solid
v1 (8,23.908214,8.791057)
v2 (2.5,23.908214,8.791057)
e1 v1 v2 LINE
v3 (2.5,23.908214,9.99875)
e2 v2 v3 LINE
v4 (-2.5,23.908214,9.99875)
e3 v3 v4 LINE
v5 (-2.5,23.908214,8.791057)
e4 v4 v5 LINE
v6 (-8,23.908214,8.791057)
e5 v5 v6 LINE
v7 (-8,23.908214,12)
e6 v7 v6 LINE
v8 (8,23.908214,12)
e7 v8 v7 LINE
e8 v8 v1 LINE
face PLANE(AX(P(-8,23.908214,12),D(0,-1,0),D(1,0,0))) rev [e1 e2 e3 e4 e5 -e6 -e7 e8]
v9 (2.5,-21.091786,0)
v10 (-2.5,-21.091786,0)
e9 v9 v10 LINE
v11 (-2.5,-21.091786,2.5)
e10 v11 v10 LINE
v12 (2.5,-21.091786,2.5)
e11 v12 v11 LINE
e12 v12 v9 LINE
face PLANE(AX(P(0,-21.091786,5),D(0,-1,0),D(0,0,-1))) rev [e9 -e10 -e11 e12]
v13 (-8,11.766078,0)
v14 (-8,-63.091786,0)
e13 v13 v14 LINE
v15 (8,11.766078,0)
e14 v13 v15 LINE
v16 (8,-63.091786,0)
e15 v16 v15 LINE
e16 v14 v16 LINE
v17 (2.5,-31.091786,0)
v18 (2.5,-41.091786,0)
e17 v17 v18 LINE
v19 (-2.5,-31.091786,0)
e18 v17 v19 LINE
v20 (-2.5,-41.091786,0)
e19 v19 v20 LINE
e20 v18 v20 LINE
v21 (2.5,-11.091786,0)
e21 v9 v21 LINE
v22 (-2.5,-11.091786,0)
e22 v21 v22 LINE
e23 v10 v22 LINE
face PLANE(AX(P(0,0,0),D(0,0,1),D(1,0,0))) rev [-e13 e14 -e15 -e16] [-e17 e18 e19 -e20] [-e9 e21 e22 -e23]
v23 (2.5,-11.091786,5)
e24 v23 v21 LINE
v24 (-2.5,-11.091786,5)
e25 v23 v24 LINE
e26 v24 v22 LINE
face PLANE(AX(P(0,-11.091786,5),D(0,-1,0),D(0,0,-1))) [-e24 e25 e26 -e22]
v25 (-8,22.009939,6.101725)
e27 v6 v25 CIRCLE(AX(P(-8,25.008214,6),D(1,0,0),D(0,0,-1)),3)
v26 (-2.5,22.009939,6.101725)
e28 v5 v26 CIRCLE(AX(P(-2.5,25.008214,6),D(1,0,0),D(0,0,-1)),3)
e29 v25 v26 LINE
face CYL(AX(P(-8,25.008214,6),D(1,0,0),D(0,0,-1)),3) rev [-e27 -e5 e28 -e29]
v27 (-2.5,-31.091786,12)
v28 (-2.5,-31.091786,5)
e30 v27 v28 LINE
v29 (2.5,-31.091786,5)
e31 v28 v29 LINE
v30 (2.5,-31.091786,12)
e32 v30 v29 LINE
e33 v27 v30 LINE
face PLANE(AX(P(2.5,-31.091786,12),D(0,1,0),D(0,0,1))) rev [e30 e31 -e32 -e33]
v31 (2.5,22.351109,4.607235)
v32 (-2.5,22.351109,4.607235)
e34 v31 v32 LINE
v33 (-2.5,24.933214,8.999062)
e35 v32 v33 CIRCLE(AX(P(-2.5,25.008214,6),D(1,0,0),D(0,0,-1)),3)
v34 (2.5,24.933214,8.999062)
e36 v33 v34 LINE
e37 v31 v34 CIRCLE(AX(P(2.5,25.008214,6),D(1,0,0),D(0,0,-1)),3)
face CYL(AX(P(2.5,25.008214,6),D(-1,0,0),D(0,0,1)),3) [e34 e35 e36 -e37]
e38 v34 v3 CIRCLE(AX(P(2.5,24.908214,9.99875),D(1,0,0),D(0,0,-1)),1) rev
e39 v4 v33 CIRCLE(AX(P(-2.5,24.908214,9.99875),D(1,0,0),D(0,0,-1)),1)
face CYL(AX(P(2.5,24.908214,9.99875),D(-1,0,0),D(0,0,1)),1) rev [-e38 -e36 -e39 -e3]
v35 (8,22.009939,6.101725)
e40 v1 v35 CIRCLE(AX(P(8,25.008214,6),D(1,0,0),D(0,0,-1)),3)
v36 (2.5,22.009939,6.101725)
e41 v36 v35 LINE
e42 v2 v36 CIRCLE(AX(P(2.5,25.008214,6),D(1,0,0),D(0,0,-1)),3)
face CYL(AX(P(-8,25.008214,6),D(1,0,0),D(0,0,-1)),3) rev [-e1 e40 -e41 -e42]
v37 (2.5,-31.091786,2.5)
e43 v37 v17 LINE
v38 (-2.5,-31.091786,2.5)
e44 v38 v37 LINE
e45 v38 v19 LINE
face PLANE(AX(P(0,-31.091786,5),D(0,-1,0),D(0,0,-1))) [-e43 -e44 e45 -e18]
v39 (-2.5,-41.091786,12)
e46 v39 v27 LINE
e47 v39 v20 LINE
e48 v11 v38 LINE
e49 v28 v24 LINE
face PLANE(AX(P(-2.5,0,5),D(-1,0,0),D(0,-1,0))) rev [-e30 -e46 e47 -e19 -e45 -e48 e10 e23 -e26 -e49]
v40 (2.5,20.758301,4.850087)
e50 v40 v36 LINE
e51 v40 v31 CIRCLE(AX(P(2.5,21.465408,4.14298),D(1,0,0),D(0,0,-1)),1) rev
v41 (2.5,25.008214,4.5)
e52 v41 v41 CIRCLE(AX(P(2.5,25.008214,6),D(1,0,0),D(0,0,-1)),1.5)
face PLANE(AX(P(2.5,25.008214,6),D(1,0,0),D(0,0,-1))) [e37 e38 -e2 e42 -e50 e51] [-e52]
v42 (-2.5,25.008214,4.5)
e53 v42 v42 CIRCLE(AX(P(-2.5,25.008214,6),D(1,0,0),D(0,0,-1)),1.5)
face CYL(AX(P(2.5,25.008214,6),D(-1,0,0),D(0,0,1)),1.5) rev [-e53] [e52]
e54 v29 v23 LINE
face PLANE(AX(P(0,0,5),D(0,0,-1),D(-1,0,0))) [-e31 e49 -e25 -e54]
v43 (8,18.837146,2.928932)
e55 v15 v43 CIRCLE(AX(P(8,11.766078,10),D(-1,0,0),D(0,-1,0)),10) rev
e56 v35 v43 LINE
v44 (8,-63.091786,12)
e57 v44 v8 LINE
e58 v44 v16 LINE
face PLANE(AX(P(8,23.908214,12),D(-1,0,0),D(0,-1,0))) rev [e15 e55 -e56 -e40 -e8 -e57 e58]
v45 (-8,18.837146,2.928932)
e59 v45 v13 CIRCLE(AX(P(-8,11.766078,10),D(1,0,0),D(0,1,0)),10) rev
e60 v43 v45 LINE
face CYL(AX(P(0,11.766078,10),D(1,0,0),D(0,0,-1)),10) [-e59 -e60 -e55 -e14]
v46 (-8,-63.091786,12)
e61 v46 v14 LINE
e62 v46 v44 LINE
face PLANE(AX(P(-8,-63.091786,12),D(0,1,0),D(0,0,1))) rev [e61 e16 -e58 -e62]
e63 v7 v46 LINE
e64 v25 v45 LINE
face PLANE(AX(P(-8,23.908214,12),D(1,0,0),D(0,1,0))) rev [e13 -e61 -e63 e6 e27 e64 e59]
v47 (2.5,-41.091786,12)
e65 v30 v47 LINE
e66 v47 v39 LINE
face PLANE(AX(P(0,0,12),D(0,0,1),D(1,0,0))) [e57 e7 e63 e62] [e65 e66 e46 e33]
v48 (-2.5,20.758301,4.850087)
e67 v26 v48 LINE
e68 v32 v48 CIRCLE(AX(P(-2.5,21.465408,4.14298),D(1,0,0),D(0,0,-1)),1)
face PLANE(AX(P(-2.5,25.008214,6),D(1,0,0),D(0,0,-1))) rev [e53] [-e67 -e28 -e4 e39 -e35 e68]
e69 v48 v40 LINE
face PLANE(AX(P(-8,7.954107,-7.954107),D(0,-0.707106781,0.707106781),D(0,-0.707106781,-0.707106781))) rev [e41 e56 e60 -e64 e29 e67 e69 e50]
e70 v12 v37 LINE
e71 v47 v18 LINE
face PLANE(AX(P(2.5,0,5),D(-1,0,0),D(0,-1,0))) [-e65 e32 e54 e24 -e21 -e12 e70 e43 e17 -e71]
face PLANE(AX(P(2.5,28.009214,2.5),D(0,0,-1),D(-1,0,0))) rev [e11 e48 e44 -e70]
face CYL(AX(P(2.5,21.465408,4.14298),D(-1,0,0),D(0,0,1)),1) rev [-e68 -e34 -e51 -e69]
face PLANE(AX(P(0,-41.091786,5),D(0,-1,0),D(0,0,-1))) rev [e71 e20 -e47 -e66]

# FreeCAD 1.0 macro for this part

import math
import FreeCAD as App
import Part
import Sketcher
Q = App.Units.Quantity


def edges_at(feature, points):
    """Names of the edges that pass closest to the given points."""
    edges = feature.Shape.Edges
    near = lambda p: min(range(len(edges)), key=lambda i: edges[i].distToShape(Part.Vertex(*p))[0])
    return sorted({f"Edge{near(p) + 1}" for p in points})

doc = App.newDocument("Part")
body = doc.addObject("PartDesign::Body", "Body")

# Sketch on XY plane
sketch1 = doc.addObject("Sketcher::SketchObject", "Sketch")
body.addObject(sketch1)
sketch1.AttachmentSupport = (doc.XY_Plane, [""])
sketch1.MapMode = "FlatFace"
sketch1.addGeometry(Part.LineSegment(App.Vector(-8, 23.908214, 0), App.Vector(-8, -63.091786, 0)), False)
sketch1.addGeometry(Part.LineSegment(App.Vector(-8, -63.091786, 0), App.Vector(8, -63.091786, 0)), False)
sketch1.addGeometry(Part.LineSegment(App.Vector(8, -63.091786, 0), App.Vector(8, 23.908214, 0)), False)
sketch1.addGeometry(Part.LineSegment(App.Vector(8, 23.908214, 0), App.Vector(-8, 23.908214, 0)), False)
sketch1.addConstraint(Sketcher.Constraint("Coincident", 0, 2, 1, 1))
sketch1.addConstraint(Sketcher.Constraint("Coincident", 1, 2, 2, 1))
sketch1.addConstraint(Sketcher.Constraint("Coincident", 2, 2, 3, 1))
sketch1.addConstraint(Sketcher.Constraint("Coincident", 3, 2, 0, 1))
sketch1.addConstraint(Sketcher.Constraint("Vertical", 0))
sketch1.addConstraint(Sketcher.Constraint("Horizontal", 1))
sketch1.addConstraint(Sketcher.Constraint("Vertical", 2))
sketch1.addConstraint(Sketcher.Constraint("Horizontal", 3))
sketch1.addConstraint(Sketcher.Constraint("DistanceX", 1, 1, 1, 2, Q("16 mm")))
sketch1.addConstraint(Sketcher.Constraint("DistanceY", 0, 2, 0, 1, Q("87 mm")))
sketch1.addConstraint(Sketcher.Constraint("DistanceX", 0, 2, -1, 1, Q("8 mm")))
sketch1.addConstraint(Sketcher.Constraint("DistanceY", 0, 2, -1, 1, Q("63.091786 mm")))
pad1 = doc.addObject("PartDesign::Pad", "Pad")
body.addObject(pad1)
pad1.Profile = sketch1
pad1.Length = 12

# Sketch on YZ plane
sketch2 = doc.addObject("Sketcher::SketchObject", "Sketch001")
body.addObject(sketch2)
sketch2.AttachmentSupport = (doc.YZ_Plane, [""])
sketch2.MapMode = "FlatFace"
sketch2.addGeometry(Part.LineSegment(App.Vector(15.908214, 0, 0), App.Vector(23.908214, 0, 0)), False)
sketch2.addGeometry(Part.LineSegment(App.Vector(23.908214, 0, 0), App.Vector(23.908214, 8, 0)), False)
sketch2.addGeometry(Part.LineSegment(App.Vector(23.908214, 8, 0), App.Vector(15.908214, 0, 0)), False)
sketch2.addConstraint(Sketcher.Constraint("Coincident", 0, 2, 1, 1))
sketch2.addConstraint(Sketcher.Constraint("Coincident", 1, 2, 2, 1))
sketch2.addConstraint(Sketcher.Constraint("Coincident", 2, 2, 0, 1))
sketch2.addConstraint(Sketcher.Constraint("Horizontal", 0))
sketch2.addConstraint(Sketcher.Constraint("Vertical", 1))
sketch2.addConstraint(Sketcher.Constraint("PointOnObject", 0, 2, -1))
sketch2.addConstraint(Sketcher.Constraint("Equal", 0, 1))
sketch2.addConstraint(Sketcher.Constraint("DistanceX", 0, 1, 0, 2, Q("8 mm")))
sketch2.addConstraint(Sketcher.Constraint("DistanceX", -1, 1, 0, 2, Q("23.908214 mm")))
pocket1 = doc.addObject("PartDesign::Pocket", "Pocket")
body.addObject(pocket1)
pocket1.Profile = sketch2
pocket1.Type = "ThroughAll"
pocket1.Midplane = True

# Sketch on YZ plane
sketch3 = doc.addObject("Sketcher::SketchObject", "Sketch002")
body.addObject(sketch3)
sketch3.AttachmentSupport = (doc.YZ_Plane, [""])
sketch3.MapMode = "FlatFace"
sketch3.addGeometry(Part.ArcOfCircle(Part.Circle(App.Vector(25.008214, 6, 0), App.Vector(0, 0, 1), 3), math.radians(-90), math.radians(111.510188)), False)
sketch3.addGeometry(Part.ArcOfCircle(Part.Circle(App.Vector(25.008214, 6, 0), App.Vector(0, 0, 1), 3), math.radians(111.510188), math.radians(248.489812)), False)
sketch3.addGeometry(Part.ArcOfCircle(Part.Circle(App.Vector(25.008214, 6, 0), App.Vector(0, 0, 1), 3), math.radians(-111.510188), math.radians(-90)), False)
sketch3.addGeometry(Part.ArcOfCircle(Part.Circle(App.Vector(25.008214, 6, 0), App.Vector(0, 0, 1), 1.5), math.radians(-137.166572), math.radians(-90)), False)
sketch3.addGeometry(Part.ArcOfCircle(Part.Circle(App.Vector(25.008214, 6, 0), App.Vector(0, 0, 1), 1.5), math.radians(137.166572), math.radians(222.833428)), False)
sketch3.addGeometry(Part.ArcOfCircle(Part.Circle(App.Vector(25.008214, 6, 0), App.Vector(0, 0, 1), 1.5), math.radians(-90), math.radians(137.166572)), False)
sketch3.addConstraint(Sketcher.Constraint("Tangent", 0, 2, 1, 1))
sketch3.addConstraint(Sketcher.Constraint("Tangent", 1, 2, 2, 1))
sketch3.addConstraint(Sketcher.Constraint("Tangent", 2, 2, 0, 1))
sketch3.addConstraint(Sketcher.Constraint("Tangent", 3, 1, 4, 2))
sketch3.addConstraint(Sketcher.Constraint("Tangent", 4, 1, 5, 2))
sketch3.addConstraint(Sketcher.Constraint("Tangent", 5, 1, 3, 2))
sketch3.addConstraint(Sketcher.Constraint("Coincident", 3, 3, 0, 3))
sketch3.addConstraint(Sketcher.Constraint("Vertical", 0, 2, 1, 2))
sketch3.addConstraint(Sketcher.Constraint("Vertical", 5, 3, 2, 2))
sketch3.addConstraint(Sketcher.Constraint("Vertical", 1, 2, 3, 1))
sketch3.addConstraint(Sketcher.Constraint("Vertical", 3, 1, 4, 1))
sketch3.addConstraint(Sketcher.Constraint("Vertical", 2, 2, 5, 1))
sketch3.addConstraint(Sketcher.Constraint("Radius", 0, Q("3 mm")))
sketch3.addConstraint(Sketcher.Constraint("Radius", 3, Q("1.5 mm")))
sketch3.addConstraint(Sketcher.Constraint("DistanceY", -1, 1, 0, 3, Q("6 mm")))
sketch3.addConstraint(Sketcher.Constraint("DistanceX", 0, 2, 2, 3, Q("1.1 mm")))
sketch3.addConstraint(Sketcher.Constraint("DistanceX", -1, 1, 0, 3, Q("25.008214 mm")))
pocket2 = doc.addObject("PartDesign::Pocket", "Pocket001")
body.addObject(pocket2)
pocket2.Profile = sketch3
pocket2.Type = "ThroughAll"
pocket2.Midplane = True

# Sketch on YZ plane
sketch4 = doc.addObject("Sketcher::SketchObject", "Sketch003")
body.addObject(sketch4)
sketch4.AttachmentSupport = (doc.YZ_Plane, [""])
sketch4.MapMode = "FlatFace"
sketch4.addGeometry(Part.Circle(App.Vector(25.008214, 6, 0), App.Vector(0, 0, 1), 3), False)
sketch4.addGeometry(Part.Circle(App.Vector(25.008214, 6, 0), App.Vector(0, 0, 1), 1.5), False)
sketch4.addConstraint(Sketcher.Constraint("Coincident", 1, 3, 0, 3))
sketch4.addConstraint(Sketcher.Constraint("Diameter", 0, Q("6 mm")))
sketch4.addConstraint(Sketcher.Constraint("Diameter", 1, Q("3 mm")))
sketch4.addConstraint(Sketcher.Constraint("DistanceY", -1, 1, 0, 3, Q("6 mm")))
sketch4.addConstraint(Sketcher.Constraint("DistanceX", -1, 1, 0, 3, Q("25.008214 mm")))
pad2 = doc.addObject("PartDesign::Pad", "Pad001")
body.addObject(pad2)
pad2.Profile = sketch4
pad2.Length = 5
pad2.Midplane = True
doc.recompute()

fillet = doc.addObject("PartDesign::Fillet", "Fillet")
body.addObject(fillet)
fillet.Base = (pad2, edges_at(pad2, [(0, 22.01, 6.102), (0, 23.908, 8.791)]))
fillet.Radius = 1
doc.recompute()

fillet2 = doc.addObject("PartDesign::Fillet", "Fillet001")
body.addObject(fillet2)
fillet2.Base = (fillet, edges_at(fillet, [(0, 15.908, 0)]))
fillet2.Radius = 10

# Sketch on XY plane
sketch5 = doc.addObject("Sketcher::SketchObject", "Sketch004")
body.addObject(sketch5)
sketch5.AttachmentSupport = (doc.XY_Plane, [""])
sketch5.MapMode = "FlatFace"
sketch5.addGeometry(Part.LineSegment(App.Vector(2.5, -11.091786, 0), App.Vector(2.5, -21.091786, 0)), False)
sketch5.addGeometry(Part.LineSegment(App.Vector(2.5, -21.091786, 0), App.Vector(-2.5, -21.091786, 0)), False)
sketch5.addGeometry(Part.LineSegment(App.Vector(-2.5, -21.091786, 0), App.Vector(-2.5, -11.091786, 0)), False)
sketch5.addGeometry(Part.LineSegment(App.Vector(-2.5, -11.091786, 0), App.Vector(2.5, -11.091786, 0)), False)
sketch5.addGeometry(Part.LineSegment(App.Vector(-2.5, -41.091786, 0), App.Vector(-2.5, -31.091786, 0)), False)
sketch5.addGeometry(Part.LineSegment(App.Vector(-2.5, -31.091786, 0), App.Vector(2.5, -31.091786, 0)), False)
sketch5.addGeometry(Part.LineSegment(App.Vector(2.5, -31.091786, 0), App.Vector(2.5, -41.091786, 0)), False)
sketch5.addGeometry(Part.LineSegment(App.Vector(2.5, -41.091786, 0), App.Vector(-2.5, -41.091786, 0)), False)
sketch5.addConstraint(Sketcher.Constraint("Coincident", 0, 2, 1, 1))
sketch5.addConstraint(Sketcher.Constraint("Coincident", 1, 2, 2, 1))
sketch5.addConstraint(Sketcher.Constraint("Coincident", 2, 2, 3, 1))
sketch5.addConstraint(Sketcher.Constraint("Coincident", 3, 2, 0, 1))
sketch5.addConstraint(Sketcher.Constraint("Coincident", 4, 2, 5, 1))
sketch5.addConstraint(Sketcher.Constraint("Coincident", 5, 2, 6, 1))
sketch5.addConstraint(Sketcher.Constraint("Coincident", 6, 2, 7, 1))
sketch5.addConstraint(Sketcher.Constraint("Coincident", 7, 2, 4, 1))
sketch5.addConstraint(Sketcher.Constraint("Vertical", 0))
sketch5.addConstraint(Sketcher.Constraint("Horizontal", 1))
sketch5.addConstraint(Sketcher.Constraint("Vertical", 2))
sketch5.addConstraint(Sketcher.Constraint("Horizontal", 3))
sketch5.addConstraint(Sketcher.Constraint("Vertical", 4))
sketch5.addConstraint(Sketcher.Constraint("Horizontal", 5))
sketch5.addConstraint(Sketcher.Constraint("Vertical", 6))
sketch5.addConstraint(Sketcher.Constraint("Horizontal", 7))
sketch5.addConstraint(Sketcher.Constraint("Vertical", 2, 2, 4, 2))
sketch5.addConstraint(Sketcher.Constraint("Vertical", 3, 2, 5, 2))
sketch5.addConstraint(Sketcher.Constraint("Equal", 2, 4))
sketch5.addConstraint(Sketcher.Constraint("DistanceX", 1, 2, 1, 1, Q("5 mm")))
sketch5.addConstraint(Sketcher.Constraint("DistanceY", 0, 2, 0, 1, Q("10 mm")))
sketch5.addConstraint(Sketcher.Constraint("DistanceY", 4, 2, 1, 2, Q("10 mm")))
sketch5.addConstraint(Sketcher.Constraint("DistanceX", -1, 1, 0, 2, Q("2.5 mm")))
sketch5.addConstraint(Sketcher.Constraint("DistanceY", 0, 2, -1, 1, Q("21.091786 mm")))
pocket3 = doc.addObject("PartDesign::Pocket", "Pocket002")
body.addObject(pocket3)
pocket3.Profile = sketch5
pocket3.Length = 5
pocket3.Reversed = True

# Sketch on XZ plane
sketch6 = doc.addObject("Sketcher::SketchObject", "Sketch005")
body.addObject(sketch6)
sketch6.AttachmentSupport = (doc.XZ_Plane, [""])
sketch6.MapMode = "FlatFace"
sketch6.AttachmentOffset = App.Placement(App.Vector(0, 0, 31.091786), App.Rotation())
sketch6.addGeometry(Part.LineSegment(App.Vector(-2.5, 5, 0), App.Vector(-2.5, 2.5, 0)), False)
sketch6.addGeometry(Part.LineSegment(App.Vector(-2.5, 2.5, 0), App.Vector(2.5, 2.5, 0)), False)
sketch6.addGeometry(Part.LineSegment(App.Vector(2.5, 2.5, 0), App.Vector(2.5, 5, 0)), False)
sketch6.addGeometry(Part.LineSegment(App.Vector(2.5, 5, 0), App.Vector(-2.5, 5, 0)), False)
sketch6.addConstraint(Sketcher.Constraint("Coincident", 0, 2, 1, 1))
sketch6.addConstraint(Sketcher.Constraint("Coincident", 1, 2, 2, 1))
sketch6.addConstraint(Sketcher.Constraint("Coincident", 2, 2, 3, 1))
sketch6.addConstraint(Sketcher.Constraint("Coincident", 3, 2, 0, 1))
sketch6.addConstraint(Sketcher.Constraint("Vertical", 0))
sketch6.addConstraint(Sketcher.Constraint("Horizontal", 1))
sketch6.addConstraint(Sketcher.Constraint("Vertical", 2))
sketch6.addConstraint(Sketcher.Constraint("Horizontal", 3))
sketch6.addConstraint(Sketcher.Constraint("DistanceX", 1, 1, 1, 2, Q("5 mm")))
sketch6.addConstraint(Sketcher.Constraint("DistanceY", 0, 2, 0, 1, Q("2.5 mm")))
sketch6.addConstraint(Sketcher.Constraint("DistanceY", -1, 1, 2, 2, Q("5 mm")))
sketch6.addConstraint(Sketcher.Constraint("DistanceX", 0, 2, -1, 1, Q("2.5 mm")))
pocket4 = doc.addObject("PartDesign::Pocket", "Pocket003")
body.addObject(pocket4)
pocket4.Profile = sketch6
pocket4.Type = "UpToFirst"

# Sketch on XY plane
sketch7 = doc.addObject("Sketcher::SketchObject", "Sketch006")
body.addObject(sketch7)
sketch7.AttachmentSupport = (doc.XY_Plane, [""])
sketch7.MapMode = "FlatFace"
sketch7.addGeometry(Part.LineSegment(App.Vector(2.5, -31.091786, 0), App.Vector(2.5, -41.091786, 0)), False)
sketch7.addGeometry(Part.LineSegment(App.Vector(2.5, -41.091786, 0), App.Vector(-2.5, -41.091786, 0)), False)
sketch7.addGeometry(Part.LineSegment(App.Vector(-2.5, -41.091786, 0), App.Vector(-2.5, -31.091786, 0)), False)
sketch7.addGeometry(Part.LineSegment(App.Vector(-2.5, -31.091786, 0), App.Vector(2.5, -31.091786, 0)), False)
sketch7.addConstraint(Sketcher.Constraint("Coincident", 0, 2, 1, 1))
sketch7.addConstraint(Sketcher.Constraint("Coincident", 1, 2, 2, 1))
sketch7.addConstraint(Sketcher.Constraint("Coincident", 2, 2, 3, 1))
sketch7.addConstraint(Sketcher.Constraint("Coincident", 3, 2, 0, 1))
sketch7.addConstraint(Sketcher.Constraint("Vertical", 0))
sketch7.addConstraint(Sketcher.Constraint("Horizontal", 1))
sketch7.addConstraint(Sketcher.Constraint("Vertical", 2))
sketch7.addConstraint(Sketcher.Constraint("Horizontal", 3))
sketch7.addConstraint(Sketcher.Constraint("DistanceX", 1, 2, 1, 1, Q("5 mm")))
sketch7.addConstraint(Sketcher.Constraint("DistanceY", 0, 2, 0, 1, Q("10 mm")))
sketch7.addConstraint(Sketcher.Constraint("DistanceX", -1, 1, 0, 2, Q("2.5 mm")))
sketch7.addConstraint(Sketcher.Constraint("DistanceY", 0, 2, -1, 1, Q("41.091786 mm")))
pocket5 = doc.addObject("PartDesign::Pocket", "Pocket004")
body.addObject(pocket5)
pocket5.Profile = sketch7
pocket5.Type = "ThroughAll"
pocket5.Reversed = True

doc.recompute()
